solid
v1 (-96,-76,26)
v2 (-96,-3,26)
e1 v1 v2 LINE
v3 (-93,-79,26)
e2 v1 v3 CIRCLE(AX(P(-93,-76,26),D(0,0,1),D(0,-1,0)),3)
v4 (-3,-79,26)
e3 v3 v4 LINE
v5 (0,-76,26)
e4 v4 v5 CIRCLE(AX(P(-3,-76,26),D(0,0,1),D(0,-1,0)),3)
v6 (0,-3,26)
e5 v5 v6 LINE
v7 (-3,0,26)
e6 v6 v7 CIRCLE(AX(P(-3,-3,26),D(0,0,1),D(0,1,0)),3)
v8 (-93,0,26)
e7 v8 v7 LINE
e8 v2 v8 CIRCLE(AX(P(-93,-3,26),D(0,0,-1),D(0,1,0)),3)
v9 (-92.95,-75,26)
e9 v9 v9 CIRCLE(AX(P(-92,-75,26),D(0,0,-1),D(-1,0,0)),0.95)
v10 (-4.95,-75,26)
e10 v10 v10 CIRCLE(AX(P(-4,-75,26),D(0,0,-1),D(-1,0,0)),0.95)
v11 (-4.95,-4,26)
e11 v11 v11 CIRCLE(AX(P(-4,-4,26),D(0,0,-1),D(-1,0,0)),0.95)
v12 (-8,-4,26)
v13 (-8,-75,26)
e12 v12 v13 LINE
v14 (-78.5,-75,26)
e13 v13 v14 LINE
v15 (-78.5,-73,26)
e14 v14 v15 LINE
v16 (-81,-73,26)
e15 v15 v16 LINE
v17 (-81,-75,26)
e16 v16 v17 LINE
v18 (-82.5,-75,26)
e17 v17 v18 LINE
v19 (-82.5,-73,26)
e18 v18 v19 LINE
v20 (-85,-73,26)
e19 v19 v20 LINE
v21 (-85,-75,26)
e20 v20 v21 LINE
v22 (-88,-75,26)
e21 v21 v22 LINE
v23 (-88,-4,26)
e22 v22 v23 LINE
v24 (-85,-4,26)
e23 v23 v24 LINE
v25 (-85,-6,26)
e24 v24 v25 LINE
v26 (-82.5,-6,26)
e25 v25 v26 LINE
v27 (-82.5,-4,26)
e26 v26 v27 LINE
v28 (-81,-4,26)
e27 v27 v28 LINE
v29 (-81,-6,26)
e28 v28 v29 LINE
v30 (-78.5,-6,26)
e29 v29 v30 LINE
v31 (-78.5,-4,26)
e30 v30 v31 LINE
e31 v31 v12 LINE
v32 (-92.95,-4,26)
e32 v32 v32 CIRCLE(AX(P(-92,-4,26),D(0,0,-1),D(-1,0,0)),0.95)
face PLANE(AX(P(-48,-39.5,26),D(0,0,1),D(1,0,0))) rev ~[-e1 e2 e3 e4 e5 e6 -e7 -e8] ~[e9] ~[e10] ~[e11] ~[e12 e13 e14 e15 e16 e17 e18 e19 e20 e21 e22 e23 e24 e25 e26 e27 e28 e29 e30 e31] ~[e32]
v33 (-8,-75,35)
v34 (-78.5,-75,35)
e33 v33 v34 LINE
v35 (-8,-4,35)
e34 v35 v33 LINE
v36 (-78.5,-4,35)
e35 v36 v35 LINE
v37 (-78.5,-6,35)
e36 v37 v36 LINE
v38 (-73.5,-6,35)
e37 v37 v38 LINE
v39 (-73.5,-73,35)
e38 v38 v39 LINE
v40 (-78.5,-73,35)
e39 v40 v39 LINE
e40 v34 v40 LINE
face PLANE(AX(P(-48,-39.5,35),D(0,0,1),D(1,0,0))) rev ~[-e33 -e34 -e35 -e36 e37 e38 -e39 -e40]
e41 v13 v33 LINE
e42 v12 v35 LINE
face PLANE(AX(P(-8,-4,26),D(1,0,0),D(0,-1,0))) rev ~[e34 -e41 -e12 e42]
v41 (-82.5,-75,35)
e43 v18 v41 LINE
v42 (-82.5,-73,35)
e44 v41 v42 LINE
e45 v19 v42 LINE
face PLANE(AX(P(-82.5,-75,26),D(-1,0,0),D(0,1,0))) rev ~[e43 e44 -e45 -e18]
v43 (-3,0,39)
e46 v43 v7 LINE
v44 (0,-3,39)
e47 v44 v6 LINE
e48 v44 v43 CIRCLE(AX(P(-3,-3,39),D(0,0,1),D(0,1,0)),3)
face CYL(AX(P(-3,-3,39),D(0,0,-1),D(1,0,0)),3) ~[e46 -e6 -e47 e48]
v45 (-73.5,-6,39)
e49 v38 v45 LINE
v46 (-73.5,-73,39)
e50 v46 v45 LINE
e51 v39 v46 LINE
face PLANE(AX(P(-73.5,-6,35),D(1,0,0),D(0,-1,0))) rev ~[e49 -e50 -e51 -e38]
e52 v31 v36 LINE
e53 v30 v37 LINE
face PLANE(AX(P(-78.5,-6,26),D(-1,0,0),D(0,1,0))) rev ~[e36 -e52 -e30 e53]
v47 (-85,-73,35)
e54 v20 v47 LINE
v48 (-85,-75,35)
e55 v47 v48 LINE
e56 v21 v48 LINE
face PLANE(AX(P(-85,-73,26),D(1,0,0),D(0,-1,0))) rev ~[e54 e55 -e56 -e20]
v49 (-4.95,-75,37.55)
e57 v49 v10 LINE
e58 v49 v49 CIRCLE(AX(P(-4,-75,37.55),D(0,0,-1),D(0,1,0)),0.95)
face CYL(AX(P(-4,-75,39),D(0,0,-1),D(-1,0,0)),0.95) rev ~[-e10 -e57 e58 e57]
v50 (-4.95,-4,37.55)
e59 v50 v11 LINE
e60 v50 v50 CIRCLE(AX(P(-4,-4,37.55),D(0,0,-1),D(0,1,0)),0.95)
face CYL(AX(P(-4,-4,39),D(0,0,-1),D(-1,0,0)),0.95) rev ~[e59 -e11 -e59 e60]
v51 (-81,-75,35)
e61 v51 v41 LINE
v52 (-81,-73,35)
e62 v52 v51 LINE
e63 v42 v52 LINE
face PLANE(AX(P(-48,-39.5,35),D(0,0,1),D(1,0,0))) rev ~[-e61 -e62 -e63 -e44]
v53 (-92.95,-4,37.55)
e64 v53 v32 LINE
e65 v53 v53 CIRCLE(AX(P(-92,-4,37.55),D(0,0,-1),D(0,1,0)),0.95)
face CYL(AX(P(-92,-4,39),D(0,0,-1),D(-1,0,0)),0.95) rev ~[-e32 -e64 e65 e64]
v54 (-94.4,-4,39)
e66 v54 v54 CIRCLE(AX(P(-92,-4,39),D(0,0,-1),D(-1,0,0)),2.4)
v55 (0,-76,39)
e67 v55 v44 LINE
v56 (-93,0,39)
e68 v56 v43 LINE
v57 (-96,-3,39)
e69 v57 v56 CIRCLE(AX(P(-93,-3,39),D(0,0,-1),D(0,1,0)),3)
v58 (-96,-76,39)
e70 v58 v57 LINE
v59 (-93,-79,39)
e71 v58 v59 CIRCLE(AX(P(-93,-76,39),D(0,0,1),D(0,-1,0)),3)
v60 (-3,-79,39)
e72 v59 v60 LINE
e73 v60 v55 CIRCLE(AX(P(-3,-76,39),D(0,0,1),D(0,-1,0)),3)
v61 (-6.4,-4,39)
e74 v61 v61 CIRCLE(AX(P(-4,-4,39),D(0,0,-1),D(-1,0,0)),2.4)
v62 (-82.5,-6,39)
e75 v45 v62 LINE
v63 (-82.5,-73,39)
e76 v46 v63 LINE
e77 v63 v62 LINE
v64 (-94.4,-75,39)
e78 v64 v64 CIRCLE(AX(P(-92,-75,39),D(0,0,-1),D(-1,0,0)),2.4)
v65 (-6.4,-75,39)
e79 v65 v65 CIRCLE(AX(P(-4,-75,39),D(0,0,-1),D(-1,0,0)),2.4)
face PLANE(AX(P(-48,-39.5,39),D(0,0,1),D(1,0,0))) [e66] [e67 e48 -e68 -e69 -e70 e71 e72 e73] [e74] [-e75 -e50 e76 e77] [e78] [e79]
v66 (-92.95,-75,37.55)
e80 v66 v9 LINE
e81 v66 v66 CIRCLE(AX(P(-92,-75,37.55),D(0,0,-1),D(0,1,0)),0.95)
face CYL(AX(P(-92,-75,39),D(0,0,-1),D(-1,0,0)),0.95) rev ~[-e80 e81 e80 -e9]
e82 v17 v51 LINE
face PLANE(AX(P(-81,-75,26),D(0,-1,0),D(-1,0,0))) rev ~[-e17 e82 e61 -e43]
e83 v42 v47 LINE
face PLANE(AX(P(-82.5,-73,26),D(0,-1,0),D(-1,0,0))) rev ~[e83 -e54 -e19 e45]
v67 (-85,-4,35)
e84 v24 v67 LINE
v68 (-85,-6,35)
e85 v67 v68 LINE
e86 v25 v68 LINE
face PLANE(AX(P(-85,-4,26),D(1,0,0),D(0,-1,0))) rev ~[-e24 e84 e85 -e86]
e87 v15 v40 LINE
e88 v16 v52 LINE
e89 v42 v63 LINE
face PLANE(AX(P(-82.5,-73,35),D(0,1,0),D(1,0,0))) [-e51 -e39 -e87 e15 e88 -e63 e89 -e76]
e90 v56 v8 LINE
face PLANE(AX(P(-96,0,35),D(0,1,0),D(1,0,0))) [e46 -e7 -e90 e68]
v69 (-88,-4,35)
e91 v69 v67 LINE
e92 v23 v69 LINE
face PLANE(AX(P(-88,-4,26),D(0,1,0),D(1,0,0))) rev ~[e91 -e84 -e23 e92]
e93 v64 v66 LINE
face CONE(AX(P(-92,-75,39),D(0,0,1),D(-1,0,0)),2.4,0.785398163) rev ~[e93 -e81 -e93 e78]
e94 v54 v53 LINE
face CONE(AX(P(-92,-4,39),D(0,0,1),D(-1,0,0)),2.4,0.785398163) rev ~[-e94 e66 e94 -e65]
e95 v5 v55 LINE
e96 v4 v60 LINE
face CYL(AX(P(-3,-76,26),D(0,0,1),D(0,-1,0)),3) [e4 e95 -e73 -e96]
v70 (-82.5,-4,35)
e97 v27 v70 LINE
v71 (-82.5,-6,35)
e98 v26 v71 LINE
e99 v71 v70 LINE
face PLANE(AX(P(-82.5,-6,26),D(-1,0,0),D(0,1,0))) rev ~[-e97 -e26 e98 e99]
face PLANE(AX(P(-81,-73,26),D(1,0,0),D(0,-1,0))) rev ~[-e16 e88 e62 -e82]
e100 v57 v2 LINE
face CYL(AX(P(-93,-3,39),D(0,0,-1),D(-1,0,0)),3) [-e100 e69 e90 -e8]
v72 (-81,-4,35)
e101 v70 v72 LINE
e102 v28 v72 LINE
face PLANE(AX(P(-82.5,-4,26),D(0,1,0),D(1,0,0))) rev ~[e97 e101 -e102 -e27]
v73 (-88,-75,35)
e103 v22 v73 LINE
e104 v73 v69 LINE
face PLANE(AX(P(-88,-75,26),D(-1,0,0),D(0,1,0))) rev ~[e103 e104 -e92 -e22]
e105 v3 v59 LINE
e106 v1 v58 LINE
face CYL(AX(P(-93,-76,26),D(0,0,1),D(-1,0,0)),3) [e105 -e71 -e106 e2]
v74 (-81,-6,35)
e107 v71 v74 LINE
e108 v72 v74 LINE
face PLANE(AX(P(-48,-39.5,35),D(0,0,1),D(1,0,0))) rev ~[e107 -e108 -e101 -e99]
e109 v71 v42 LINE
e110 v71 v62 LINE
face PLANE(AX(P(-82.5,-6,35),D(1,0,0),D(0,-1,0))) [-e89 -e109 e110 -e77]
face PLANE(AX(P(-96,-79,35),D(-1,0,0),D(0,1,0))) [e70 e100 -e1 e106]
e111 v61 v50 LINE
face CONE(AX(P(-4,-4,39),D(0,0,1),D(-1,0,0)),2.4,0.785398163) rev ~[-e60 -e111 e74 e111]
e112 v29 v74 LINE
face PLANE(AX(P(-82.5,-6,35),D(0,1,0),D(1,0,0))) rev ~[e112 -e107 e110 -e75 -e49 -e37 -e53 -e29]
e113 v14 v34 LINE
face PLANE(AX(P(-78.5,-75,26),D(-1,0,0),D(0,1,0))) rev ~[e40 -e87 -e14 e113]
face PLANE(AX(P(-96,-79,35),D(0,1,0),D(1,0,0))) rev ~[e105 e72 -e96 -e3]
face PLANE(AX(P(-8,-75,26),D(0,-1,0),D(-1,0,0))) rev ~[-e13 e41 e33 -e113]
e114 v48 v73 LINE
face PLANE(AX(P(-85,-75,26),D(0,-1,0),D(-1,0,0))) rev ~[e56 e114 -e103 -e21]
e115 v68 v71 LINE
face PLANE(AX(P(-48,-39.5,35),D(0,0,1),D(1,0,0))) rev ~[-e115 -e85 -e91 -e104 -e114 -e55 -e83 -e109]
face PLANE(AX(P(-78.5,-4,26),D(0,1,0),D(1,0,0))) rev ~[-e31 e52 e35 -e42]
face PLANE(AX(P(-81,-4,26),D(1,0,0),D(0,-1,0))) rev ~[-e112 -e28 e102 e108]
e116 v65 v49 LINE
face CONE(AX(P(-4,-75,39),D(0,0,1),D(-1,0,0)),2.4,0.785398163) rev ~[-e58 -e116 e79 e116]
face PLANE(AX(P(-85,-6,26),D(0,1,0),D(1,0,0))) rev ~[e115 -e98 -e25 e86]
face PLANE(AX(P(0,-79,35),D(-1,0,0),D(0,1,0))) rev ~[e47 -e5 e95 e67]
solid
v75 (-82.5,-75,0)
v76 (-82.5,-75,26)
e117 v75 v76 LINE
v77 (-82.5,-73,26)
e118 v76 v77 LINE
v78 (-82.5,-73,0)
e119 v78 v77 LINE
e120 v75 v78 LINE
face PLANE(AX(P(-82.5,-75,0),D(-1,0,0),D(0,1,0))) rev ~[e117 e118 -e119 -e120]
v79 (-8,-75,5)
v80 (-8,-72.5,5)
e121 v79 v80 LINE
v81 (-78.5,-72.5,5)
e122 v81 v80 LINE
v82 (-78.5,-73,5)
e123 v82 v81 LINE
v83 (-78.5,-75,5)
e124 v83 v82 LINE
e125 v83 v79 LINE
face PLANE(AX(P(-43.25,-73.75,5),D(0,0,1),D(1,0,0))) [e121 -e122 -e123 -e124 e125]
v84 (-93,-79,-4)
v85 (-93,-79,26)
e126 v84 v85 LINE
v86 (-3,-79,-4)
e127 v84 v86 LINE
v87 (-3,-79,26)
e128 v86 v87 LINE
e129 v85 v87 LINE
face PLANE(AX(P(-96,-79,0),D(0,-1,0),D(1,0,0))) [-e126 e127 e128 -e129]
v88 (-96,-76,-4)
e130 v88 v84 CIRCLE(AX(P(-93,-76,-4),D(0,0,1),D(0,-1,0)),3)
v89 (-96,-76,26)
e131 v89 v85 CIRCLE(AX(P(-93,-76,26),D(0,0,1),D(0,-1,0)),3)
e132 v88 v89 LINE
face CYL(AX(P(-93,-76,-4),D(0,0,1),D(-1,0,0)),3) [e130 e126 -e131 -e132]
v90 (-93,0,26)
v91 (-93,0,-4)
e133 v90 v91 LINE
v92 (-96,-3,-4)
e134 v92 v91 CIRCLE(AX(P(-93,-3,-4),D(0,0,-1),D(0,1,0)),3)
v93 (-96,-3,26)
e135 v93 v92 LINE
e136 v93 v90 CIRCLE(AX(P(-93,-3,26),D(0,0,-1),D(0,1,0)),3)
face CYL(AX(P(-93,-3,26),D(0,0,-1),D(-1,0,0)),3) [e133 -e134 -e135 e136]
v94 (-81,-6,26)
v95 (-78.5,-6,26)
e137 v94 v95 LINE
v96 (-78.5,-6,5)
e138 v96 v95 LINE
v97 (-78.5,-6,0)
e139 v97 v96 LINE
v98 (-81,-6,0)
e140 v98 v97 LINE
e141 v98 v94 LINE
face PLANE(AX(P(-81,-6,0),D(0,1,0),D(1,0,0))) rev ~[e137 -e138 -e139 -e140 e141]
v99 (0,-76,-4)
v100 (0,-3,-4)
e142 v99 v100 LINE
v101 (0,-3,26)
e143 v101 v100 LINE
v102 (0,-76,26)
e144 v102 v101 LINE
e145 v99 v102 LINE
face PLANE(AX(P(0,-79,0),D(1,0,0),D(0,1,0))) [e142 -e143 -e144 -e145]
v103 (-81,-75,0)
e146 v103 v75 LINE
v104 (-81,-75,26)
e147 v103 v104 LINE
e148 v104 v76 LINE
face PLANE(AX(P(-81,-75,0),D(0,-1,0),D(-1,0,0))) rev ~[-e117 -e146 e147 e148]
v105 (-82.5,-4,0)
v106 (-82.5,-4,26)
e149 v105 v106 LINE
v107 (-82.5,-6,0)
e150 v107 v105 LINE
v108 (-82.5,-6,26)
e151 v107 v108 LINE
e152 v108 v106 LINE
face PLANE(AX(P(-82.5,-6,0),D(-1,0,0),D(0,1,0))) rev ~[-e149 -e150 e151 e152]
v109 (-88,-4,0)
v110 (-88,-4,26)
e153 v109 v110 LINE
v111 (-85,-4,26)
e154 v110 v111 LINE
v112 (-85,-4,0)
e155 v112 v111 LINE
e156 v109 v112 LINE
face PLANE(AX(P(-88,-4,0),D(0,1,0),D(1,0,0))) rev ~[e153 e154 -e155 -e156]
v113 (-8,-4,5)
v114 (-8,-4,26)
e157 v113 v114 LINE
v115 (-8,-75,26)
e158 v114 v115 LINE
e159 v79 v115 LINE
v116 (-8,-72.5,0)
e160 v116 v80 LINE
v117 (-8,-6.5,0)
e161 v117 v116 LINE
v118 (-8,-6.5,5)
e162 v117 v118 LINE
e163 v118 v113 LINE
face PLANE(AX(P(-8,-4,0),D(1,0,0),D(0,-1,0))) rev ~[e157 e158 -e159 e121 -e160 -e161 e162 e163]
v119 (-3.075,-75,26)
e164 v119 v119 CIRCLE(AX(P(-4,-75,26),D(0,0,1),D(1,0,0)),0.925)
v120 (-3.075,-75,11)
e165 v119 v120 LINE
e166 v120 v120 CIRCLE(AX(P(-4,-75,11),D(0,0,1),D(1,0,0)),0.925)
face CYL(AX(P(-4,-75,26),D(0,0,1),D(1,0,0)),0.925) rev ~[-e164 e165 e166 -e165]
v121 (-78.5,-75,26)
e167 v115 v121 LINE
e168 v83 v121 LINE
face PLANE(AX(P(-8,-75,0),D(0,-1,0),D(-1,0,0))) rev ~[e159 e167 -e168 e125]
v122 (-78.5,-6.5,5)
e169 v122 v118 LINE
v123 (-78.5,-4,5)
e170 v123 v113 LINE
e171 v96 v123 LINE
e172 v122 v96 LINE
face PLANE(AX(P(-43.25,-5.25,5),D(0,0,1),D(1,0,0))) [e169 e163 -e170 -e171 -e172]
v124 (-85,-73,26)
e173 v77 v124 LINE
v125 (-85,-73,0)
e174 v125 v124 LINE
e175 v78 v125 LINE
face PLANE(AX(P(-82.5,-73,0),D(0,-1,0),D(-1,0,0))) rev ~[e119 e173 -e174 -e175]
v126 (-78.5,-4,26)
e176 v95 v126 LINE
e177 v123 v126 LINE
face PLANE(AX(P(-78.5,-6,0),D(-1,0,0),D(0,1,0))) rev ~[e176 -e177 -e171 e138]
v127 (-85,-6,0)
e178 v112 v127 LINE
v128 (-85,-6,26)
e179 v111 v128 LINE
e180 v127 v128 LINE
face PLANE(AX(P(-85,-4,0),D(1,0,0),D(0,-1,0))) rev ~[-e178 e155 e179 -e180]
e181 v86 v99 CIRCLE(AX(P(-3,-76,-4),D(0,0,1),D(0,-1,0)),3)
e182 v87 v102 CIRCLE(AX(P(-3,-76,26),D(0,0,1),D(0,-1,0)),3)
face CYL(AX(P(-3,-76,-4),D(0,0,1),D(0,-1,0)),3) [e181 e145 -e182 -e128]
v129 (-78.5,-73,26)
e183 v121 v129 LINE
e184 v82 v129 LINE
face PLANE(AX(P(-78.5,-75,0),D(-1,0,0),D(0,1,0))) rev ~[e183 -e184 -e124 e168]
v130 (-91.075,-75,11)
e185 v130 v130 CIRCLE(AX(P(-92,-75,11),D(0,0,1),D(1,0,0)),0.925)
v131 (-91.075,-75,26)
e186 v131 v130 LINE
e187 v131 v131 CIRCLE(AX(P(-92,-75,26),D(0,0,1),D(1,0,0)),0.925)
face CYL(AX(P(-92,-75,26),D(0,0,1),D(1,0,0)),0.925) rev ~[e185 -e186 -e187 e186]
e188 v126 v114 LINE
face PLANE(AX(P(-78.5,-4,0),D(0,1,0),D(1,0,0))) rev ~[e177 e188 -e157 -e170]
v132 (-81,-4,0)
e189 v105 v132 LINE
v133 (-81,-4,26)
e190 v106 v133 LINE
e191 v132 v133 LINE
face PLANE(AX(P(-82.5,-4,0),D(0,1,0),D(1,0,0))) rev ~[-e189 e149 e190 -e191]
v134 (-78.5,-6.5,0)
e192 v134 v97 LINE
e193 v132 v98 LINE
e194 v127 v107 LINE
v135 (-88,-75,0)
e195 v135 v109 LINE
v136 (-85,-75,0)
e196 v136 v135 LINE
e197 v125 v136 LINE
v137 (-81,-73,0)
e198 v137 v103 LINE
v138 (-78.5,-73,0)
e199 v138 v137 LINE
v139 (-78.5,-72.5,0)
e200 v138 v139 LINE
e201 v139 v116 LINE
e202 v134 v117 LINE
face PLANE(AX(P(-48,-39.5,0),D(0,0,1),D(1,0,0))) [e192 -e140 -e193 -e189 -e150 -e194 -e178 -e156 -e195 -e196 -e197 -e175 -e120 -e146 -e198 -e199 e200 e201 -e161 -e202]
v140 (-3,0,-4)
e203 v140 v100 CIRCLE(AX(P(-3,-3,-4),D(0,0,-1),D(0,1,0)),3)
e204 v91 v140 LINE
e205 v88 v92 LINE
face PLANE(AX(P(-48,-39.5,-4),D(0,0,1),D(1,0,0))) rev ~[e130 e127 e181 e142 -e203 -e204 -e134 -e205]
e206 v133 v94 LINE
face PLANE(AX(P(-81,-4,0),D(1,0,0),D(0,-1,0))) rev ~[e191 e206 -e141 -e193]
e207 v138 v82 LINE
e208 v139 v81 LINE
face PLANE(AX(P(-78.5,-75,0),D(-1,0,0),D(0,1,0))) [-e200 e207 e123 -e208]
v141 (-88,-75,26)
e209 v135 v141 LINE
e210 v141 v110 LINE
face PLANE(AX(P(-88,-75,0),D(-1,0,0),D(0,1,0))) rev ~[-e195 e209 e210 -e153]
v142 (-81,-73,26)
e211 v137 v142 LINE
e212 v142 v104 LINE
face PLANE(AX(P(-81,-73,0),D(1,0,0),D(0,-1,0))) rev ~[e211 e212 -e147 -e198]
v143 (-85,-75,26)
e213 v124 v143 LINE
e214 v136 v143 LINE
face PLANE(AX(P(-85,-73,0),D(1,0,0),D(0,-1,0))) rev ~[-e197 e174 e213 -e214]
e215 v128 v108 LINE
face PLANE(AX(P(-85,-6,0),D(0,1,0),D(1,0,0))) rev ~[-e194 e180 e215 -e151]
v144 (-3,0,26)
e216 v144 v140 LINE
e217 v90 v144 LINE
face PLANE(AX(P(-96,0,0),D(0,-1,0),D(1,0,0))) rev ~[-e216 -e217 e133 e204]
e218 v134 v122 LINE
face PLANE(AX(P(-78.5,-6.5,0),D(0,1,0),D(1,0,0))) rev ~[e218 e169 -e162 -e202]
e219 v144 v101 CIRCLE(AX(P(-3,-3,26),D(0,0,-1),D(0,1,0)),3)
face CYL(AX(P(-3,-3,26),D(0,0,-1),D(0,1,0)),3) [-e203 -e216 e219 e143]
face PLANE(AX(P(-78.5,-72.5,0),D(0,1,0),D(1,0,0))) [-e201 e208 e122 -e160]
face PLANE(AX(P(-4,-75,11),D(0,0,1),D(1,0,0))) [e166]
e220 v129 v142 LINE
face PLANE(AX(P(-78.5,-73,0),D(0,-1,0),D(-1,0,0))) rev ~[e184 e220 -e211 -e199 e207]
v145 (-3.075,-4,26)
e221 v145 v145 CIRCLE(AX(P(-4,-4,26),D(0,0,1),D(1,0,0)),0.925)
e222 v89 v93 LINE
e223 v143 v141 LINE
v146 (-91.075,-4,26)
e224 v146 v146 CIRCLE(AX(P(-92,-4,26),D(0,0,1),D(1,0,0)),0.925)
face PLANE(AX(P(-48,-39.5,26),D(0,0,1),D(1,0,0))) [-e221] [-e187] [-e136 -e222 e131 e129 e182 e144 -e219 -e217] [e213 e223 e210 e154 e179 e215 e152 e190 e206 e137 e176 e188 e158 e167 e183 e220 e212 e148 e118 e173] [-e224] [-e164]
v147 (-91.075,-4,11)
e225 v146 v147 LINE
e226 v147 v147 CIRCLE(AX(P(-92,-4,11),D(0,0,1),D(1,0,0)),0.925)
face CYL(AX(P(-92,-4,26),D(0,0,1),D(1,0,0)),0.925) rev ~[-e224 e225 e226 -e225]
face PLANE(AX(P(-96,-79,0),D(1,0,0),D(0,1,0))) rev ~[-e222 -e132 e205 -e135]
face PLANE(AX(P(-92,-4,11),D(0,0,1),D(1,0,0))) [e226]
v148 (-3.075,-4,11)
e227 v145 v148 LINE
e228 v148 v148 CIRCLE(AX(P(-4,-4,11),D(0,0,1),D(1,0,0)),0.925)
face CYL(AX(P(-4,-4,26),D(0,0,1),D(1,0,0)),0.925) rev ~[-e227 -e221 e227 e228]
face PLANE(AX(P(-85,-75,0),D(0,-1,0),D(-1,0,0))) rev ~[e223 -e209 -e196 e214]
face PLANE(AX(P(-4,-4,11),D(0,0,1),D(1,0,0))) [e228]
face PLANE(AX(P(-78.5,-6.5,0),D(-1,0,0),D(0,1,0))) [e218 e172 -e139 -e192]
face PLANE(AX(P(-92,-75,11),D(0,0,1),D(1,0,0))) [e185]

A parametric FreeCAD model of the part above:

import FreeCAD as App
import Part
import Sketcher

V = App.Vector
Q = App.Units.Quantity


def edges_at(feature, points):
    """Names of the edges that pass closest to the given points."""
    edges = feature.Shape.Edges
    near = lambda p: min(range(len(edges)), key=lambda i: edges[i].distToShape(Part.Vertex(*p))[0])
    return sorted({f"Edge{near(p) + 1}" for p in points})

doc = App.newDocument("Part")
body = doc.addObject("PartDesign::Body", "Body")

sketch1 = body.newObject("Sketcher::SketchObject", "Sketch")
sketch1.AttachmentSupport = (doc.getObject("XY_Plane"), [""])
sketch1.MapMode = "FlatFace"
sketch1.addGeometry(Part.LineSegment(V(-96, 0, 0), V(-96, -79, 0)), False)
sketch1.addGeometry(Part.LineSegment(V(-96, -79, 0), V(0, -79, 0)), False)
sketch1.addGeometry(Part.LineSegment(V(0, -79, 0), V(0, 0, 0)), False)
sketch1.addGeometry(Part.LineSegment(V(0, 0, 0), V(-96, 0, 0)), False)
sketch1.addGeometry(Part.LineSegment(V(-85, -75, 0), V(-88, -75, 0)), False)
sketch1.addGeometry(Part.LineSegment(V(-88, -75, 0), V(-88, -4, 0)), False)
sketch1.addGeometry(Part.LineSegment(V(-88, -4, 0), V(-85, -4, 0)), False)
sketch1.addGeometry(Part.LineSegment(V(-85, -4, 0), V(-85, -6, 0)), False)
sketch1.addGeometry(Part.LineSegment(V(-85, -6, 0), V(-82.5, -6, 0)), False)
sketch1.addGeometry(Part.LineSegment(V(-82.5, -6, 0), V(-82.5, -4, 0)), False)
sketch1.addGeometry(Part.LineSegment(V(-82.5, -4, 0), V(-81, -4, 0)), False)
sketch1.addGeometry(Part.LineSegment(V(-81, -4, 0), V(-81, -6, 0)), False)
sketch1.addGeometry(Part.LineSegment(V(-81, -6, 0), V(-78.5, -6, 0)), False)
sketch1.addGeometry(Part.LineSegment(V(-78.5, -6, 0), V(-78.5, -4, 0)), False)
sketch1.addGeometry(Part.LineSegment(V(-78.5, -4, 0), V(-8, -4, 0)), False)
sketch1.addGeometry(Part.LineSegment(V(-8, -4, 0), V(-8, -75, 0)), False)
sketch1.addGeometry(Part.LineSegment(V(-8, -75, 0), V(-78.5, -75, 0)), False)
sketch1.addGeometry(Part.LineSegment(V(-78.5, -75, 0), V(-78.5, -73, 0)), False)
sketch1.addGeometry(Part.LineSegment(V(-78.5, -73, 0), V(-81, -73, 0)), False)
sketch1.addGeometry(Part.LineSegment(V(-81, -73, 0), V(-81, -75, 0)), False)
sketch1.addGeometry(Part.LineSegment(V(-81, -75, 0), V(-82.5, -75, 0)), False)
sketch1.addGeometry(Part.LineSegment(V(-82.5, -75, 0), V(-82.5, -73, 0)), False)
sketch1.addGeometry(Part.LineSegment(V(-82.5, -73, 0), V(-85, -73, 0)), False)
sketch1.addGeometry(Part.LineSegment(V(-85, -73, 0), V(-85, -75, 0)), False)
sketch1.addConstraint(Sketcher.Constraint("Coincident", 0, 2, 1, 1))
sketch1.addConstraint(Sketcher.Constraint("Coincident", 1, 2, 2, 1))
sketch1.addConstraint(Sketcher.Constraint("Coincident", 2, 2, 3, 1))
sketch1.addConstraint(Sketcher.Constraint("Coincident", 3, 2, 0, 1))
sketch1.addConstraint(Sketcher.Constraint("Coincident", 4, 2, 5, 1))
sketch1.addConstraint(Sketcher.Constraint("Coincident", 5, 2, 6, 1))
sketch1.addConstraint(Sketcher.Constraint("Coincident", 6, 2, 7, 1))
sketch1.addConstraint(Sketcher.Constraint("Coincident", 7, 2, 8, 1))
sketch1.addConstraint(Sketcher.Constraint("Coincident", 8, 2, 9, 1))
sketch1.addConstraint(Sketcher.Constraint("Coincident", 9, 2, 10, 1))
sketch1.addConstraint(Sketcher.Constraint("Coincident", 10, 2, 11, 1))
sketch1.addConstraint(Sketcher.Constraint("Coincident", 11, 2, 12, 1))
sketch1.addConstraint(Sketcher.Constraint("Coincident", 12, 2, 13, 1))
sketch1.addConstraint(Sketcher.Constraint("Coincident", 13, 2, 14, 1))
sketch1.addConstraint(Sketcher.Constraint("Coincident", 14, 2, 15, 1))
sketch1.addConstraint(Sketcher.Constraint("Coincident", 15, 2, 16, 1))
sketch1.addConstraint(Sketcher.Constraint("Coincident", 16, 2, 17, 1))
sketch1.addConstraint(Sketcher.Constraint("Coincident", 17, 2, 18, 1))
sketch1.addConstraint(Sketcher.Constraint("Coincident", 18, 2, 19, 1))
sketch1.addConstraint(Sketcher.Constraint("Coincident", 19, 2, 20, 1))
sketch1.addConstraint(Sketcher.Constraint("Coincident", 20, 2, 21, 1))
sketch1.addConstraint(Sketcher.Constraint("Coincident", 21, 2, 22, 1))
sketch1.addConstraint(Sketcher.Constraint("Coincident", 22, 2, 23, 1))
sketch1.addConstraint(Sketcher.Constraint("Coincident", 23, 2, 4, 1))
sketch1.addConstraint(Sketcher.Constraint("Vertical", 0))
sketch1.addConstraint(Sketcher.Constraint("Horizontal", 1))
sketch1.addConstraint(Sketcher.Constraint("Vertical", 2))
sketch1.addConstraint(Sketcher.Constraint("Horizontal", 3))
sketch1.addConstraint(Sketcher.Constraint("Horizontal", 4))
sketch1.addConstraint(Sketcher.Constraint("Vertical", 5))
sketch1.addConstraint(Sketcher.Constraint("Horizontal", 6))
sketch1.addConstraint(Sketcher.Constraint("Vertical", 7))
sketch1.addConstraint(Sketcher.Constraint("Horizontal", 8))
sketch1.addConstraint(Sketcher.Constraint("Vertical", 9))
sketch1.addConstraint(Sketcher.Constraint("Horizontal", 10))
sketch1.addConstraint(Sketcher.Constraint("Vertical", 11))
sketch1.addConstraint(Sketcher.Constraint("Horizontal", 12))
sketch1.addConstraint(Sketcher.Constraint("Vertical", 13))
sketch1.addConstraint(Sketcher.Constraint("Horizontal", 14))
sketch1.addConstraint(Sketcher.Constraint("Vertical", 15))
sketch1.addConstraint(Sketcher.Constraint("Horizontal", 16))
sketch1.addConstraint(Sketcher.Constraint("Vertical", 17))
sketch1.addConstraint(Sketcher.Constraint("Horizontal", 18))
sketch1.addConstraint(Sketcher.Constraint("Vertical", 19))
sketch1.addConstraint(Sketcher.Constraint("Horizontal", 20))
sketch1.addConstraint(Sketcher.Constraint("Vertical", 21))
sketch1.addConstraint(Sketcher.Constraint("Horizontal", 22))
sketch1.addConstraint(Sketcher.Constraint("Vertical", 23))
sketch1.addConstraint(Sketcher.Constraint("Coincident", 2, 2, -1, 1))
sketch1.addConstraint(Sketcher.Constraint("Horizontal", 6, 2, 9, 2))
sketch1.addConstraint(Sketcher.Constraint("Horizontal", 8, 2, 11, 2))
sketch1.addConstraint(Sketcher.Constraint("Horizontal", 10, 2, 13, 2))
sketch1.addConstraint(Sketcher.Constraint("Horizontal", 4, 2, 15, 2))
sketch1.addConstraint(Sketcher.Constraint("Horizontal", 16, 2, 19, 2))
sketch1.addConstraint(Sketcher.Constraint("Horizontal", 18, 2, 21, 2))
sketch1.addConstraint(Sketcher.Constraint("Vertical", 13, 2, 16, 2))
sketch1.addConstraint(Sketcher.Constraint("Vertical", 11, 2, 18, 2))
sketch1.addConstraint(Sketcher.Constraint("Vertical", 9, 2, 20, 2))
sketch1.addConstraint(Sketcher.Constraint("Vertical", 7, 2, 22, 2))
sketch1.addConstraint(Sketcher.Constraint("Equal", 8, 12))
sketch1.addConstraint(Sketcher.Constraint("Equal", 13, 17))
sketch1.addConstraint(Sketcher.Constraint("DistanceX", 1, 1, 1, 2, Q("96 mm")))
sketch1.addConstraint(Sketcher.Constraint("DistanceX", 4, 2, 4, 1, Q("3 mm")))
sketch1.addConstraint(Sketcher.Constraint("DistanceY", 0, 2, 0, 1, Q("79 mm")))
sketch1.addConstraint(Sketcher.Constraint("DistanceY", 5, 1, 5, 2, Q("71 mm")))
sketch1.addConstraint(Sketcher.Constraint("DistanceY", 7, 2, 7, 1, Q("2 mm")))
sketch1.addConstraint(Sketcher.Constraint("DistanceX", 8, 1, 8, 2, Q("2.5 mm")))
sketch1.addConstraint(Sketcher.Constraint("DistanceX", 10, 1, 10, 2, Q("1.5 mm")))
sketch1.addConstraint(Sketcher.Constraint("DistanceX", 14, 1, 14, 2, Q("70.5 mm")))
sketch1.addConstraint(Sketcher.Constraint("DistanceX", 4, 2, -1, 1, Q("88 mm")))
sketch1.addConstraint(Sketcher.Constraint("DistanceY", 4, 2, -1, 1, Q("75 mm")))
pad1 = body.newObject("PartDesign::Pad", "Pad")
pad1.Profile = sketch1
pad1.Length = 26

sketch2 = body.newObject("Sketcher::SketchObject", "Sketch001")
sketch2.AttachmentSupport = (doc.getObject("XY_Plane"), [""])
sketch2.MapMode = "FlatFace"
sketch2.addGeometry(Part.LineSegment(V(-96, 0, 0), V(-96, -79, 0)), False)
sketch2.addGeometry(Part.LineSegment(V(-96, -79, 0), V(0, -79, 0)), False)
sketch2.addGeometry(Part.LineSegment(V(0, -79, 0), V(0, 0, 0)), False)
sketch2.addGeometry(Part.LineSegment(V(0, 0, 0), V(-96, 0, 0)), False)
sketch2.addConstraint(Sketcher.Constraint("Coincident", 0, 2, 1, 1))
sketch2.addConstraint(Sketcher.Constraint("Coincident", 1, 2, 2, 1))
sketch2.addConstraint(Sketcher.Constraint("Coincident", 2, 2, 3, 1))
sketch2.addConstraint(Sketcher.Constraint("Coincident", 3, 2, 0, 1))
sketch2.addConstraint(Sketcher.Constraint("Vertical", 0))
sketch2.addConstraint(Sketcher.Constraint("Horizontal", 1))
sketch2.addConstraint(Sketcher.Constraint("Vertical", 2))
sketch2.addConstraint(Sketcher.Constraint("Horizontal", 3))
sketch2.addConstraint(Sketcher.Constraint("Coincident", 2, 2, -1, 1))
sketch2.addConstraint(Sketcher.Constraint("DistanceX", 1, 1, 1, 2, Q("96 mm")))
sketch2.addConstraint(Sketcher.Constraint("DistanceY", 0, 2, 0, 1, Q("79 mm")))
pad2 = body.newObject("PartDesign::Pad", "Pad001")
pad2.Profile = sketch2
pad2.Length = 4
pad2.Reversed = True

sketch3 = body.newObject("Sketcher::SketchObject", "Sketch002")
sketch3.AttachmentSupport = (doc.getObject("XY_Plane"), [""])
sketch3.MapMode = "FlatFace"
sketch3.addGeometry(Part.LineSegment(V(-78.5, -4, 0), V(-78.5, -6.5, 0)), False)
sketch3.addGeometry(Part.LineSegment(V(-78.5, -6.5, 0), V(-8, -6.5, 0)), False)
sketch3.addGeometry(Part.LineSegment(V(-8, -6.5, 0), V(-8, -4, 0)), False)
sketch3.addGeometry(Part.LineSegment(V(-8, -4, 0), V(-78.5, -4, 0)), False)
sketch3.addGeometry(Part.LineSegment(V(-78.5, -72.5, 0), V(-78.5, -75, 0)), False)
sketch3.addGeometry(Part.LineSegment(V(-78.5, -75, 0), V(-8, -75, 0)), False)
sketch3.addGeometry(Part.LineSegment(V(-8, -75, 0), V(-8, -72.5, 0)), False)
sketch3.addGeometry(Part.LineSegment(V(-8, -72.5, 0), V(-78.5, -72.5, 0)), False)
sketch3.addConstraint(Sketcher.Constraint("Coincident", 0, 2, 1, 1))
sketch3.addConstraint(Sketcher.Constraint("Coincident", 1, 2, 2, 1))
sketch3.addConstraint(Sketcher.Constraint("Coincident", 2, 2, 3, 1))
sketch3.addConstraint(Sketcher.Constraint("Coincident", 3, 2, 0, 1))
sketch3.addConstraint(Sketcher.Constraint("Coincident", 4, 2, 5, 1))
sketch3.addConstraint(Sketcher.Constraint("Coincident", 5, 2, 6, 1))
sketch3.addConstraint(Sketcher.Constraint("Coincident", 6, 2, 7, 1))
sketch3.addConstraint(Sketcher.Constraint("Coincident", 7, 2, 4, 1))
sketch3.addConstraint(Sketcher.Constraint("Vertical", 0))
sketch3.addConstraint(Sketcher.Constraint("Horizontal", 1))
sketch3.addConstraint(Sketcher.Constraint("Vertical", 2))
sketch3.addConstraint(Sketcher.Constraint("Horizontal", 3))
sketch3.addConstraint(Sketcher.Constraint("Vertical", 4))
sketch3.addConstraint(Sketcher.Constraint("Horizontal", 5))
sketch3.addConstraint(Sketcher.Constraint("Vertical", 6))
sketch3.addConstraint(Sketcher.Constraint("Horizontal", 7))
sketch3.addConstraint(Sketcher.Constraint("Vertical", 3, 2, 4, 2))
sketch3.addConstraint(Sketcher.Constraint("Vertical", 2, 2, 5, 2))
sketch3.addConstraint(Sketcher.Constraint("Equal", 2, 4))
sketch3.addConstraint(Sketcher.Constraint("DistanceX", 1, 1, 1, 2, Q("70.5 mm")))
sketch3.addConstraint(Sketcher.Constraint("DistanceY", 0, 2, 0, 1, Q("2.5 mm")))
sketch3.addConstraint(Sketcher.Constraint("DistanceX", 1, 2, -1, 1, Q("8 mm")))
sketch3.addConstraint(Sketcher.Constraint("DistanceY", 2, 2, -1, 1, Q("4 mm")))
sketch3.addConstraint(Sketcher.Constraint("DistanceY", 4, 2, -1, 1, Q("75 mm")))
pad3 = body.newObject("PartDesign::Pad", "Pad002")
pad3.Profile = sketch3
pad3.Length = 5

sketch4 = body.newObject("Sketcher::SketchObject", "Sketch003")
sketch4.AttachmentSupport = (doc.getObject("XY_Plane"), [""])
sketch4.MapMode = "FlatFace"
sketch4.AttachmentOffset = App.Placement(V(0, 0, 26), App.Rotation())
sketch4.addGeometry(Part.Circle(V(-92, -4, 0), V(0, 0, 1), 0.925), False)
sketch4.addGeometry(Part.Circle(V(-4, -4, 0), V(0, 0, 1), 0.925), False)
sketch4.addGeometry(Part.Circle(V(-4, -75, 0), V(0, 0, 1), 0.925), False)
sketch4.addGeometry(Part.Circle(V(-92, -75, 0), V(0, 0, 1), 0.925), False)
sketch4.addConstraint(Sketcher.Constraint("Equal", 0, 1))
sketch4.addConstraint(Sketcher.Constraint("Equal", 1, 2))
sketch4.addConstraint(Sketcher.Constraint("Equal", 2, 3))
sketch4.addConstraint(Sketcher.Constraint("Horizontal", 0, 3, 1, 3))
sketch4.addConstraint(Sketcher.Constraint("Horizontal", 2, 3, 3, 3))
sketch4.addConstraint(Sketcher.Constraint("Vertical", 1, 3, 2, 3))
sketch4.addConstraint(Sketcher.Constraint("Vertical", 0, 3, 3, 3))
sketch4.addConstraint(Sketcher.Constraint("Diameter", 0, Q("1.85 mm")))
sketch4.addConstraint(Sketcher.Constraint("DistanceX", 0, 3, -1, 1, Q("92 mm")))
sketch4.addConstraint(Sketcher.Constraint("DistanceY", 0, 3, -1, 1, Q("4 mm")))
sketch4.addConstraint(Sketcher.Constraint("DistanceX", 1, 3, -1, 1, Q("4 mm")))
sketch4.addConstraint(Sketcher.Constraint("DistanceY", 2, 3, -1, 1, Q("75 mm")))
pocket1 = body.newObject("PartDesign::Pocket", "Pocket")
pocket1.Profile = sketch4
pocket1.Length = 15
doc.recompute()

fillet = body.newObject("PartDesign::Fillet", "Fillet")
fillet.Base = (pocket1, edges_at(pocket1, [
    (0, -79, 11),
    (-96, -79, 11),
    (0, 0, 11),
    (-96, 0, 11),
]))
fillet.Radius = 3
body2 = doc.addObject("PartDesign::Body", "Body001")

sketch5 = body2.newObject("Sketcher::SketchObject", "Sketch004")
sketch5.AttachmentSupport = (doc.getObject("XY_Plane001"), [""])
sketch5.MapMode = "FlatFace"
sketch5.AttachmentOffset = App.Placement(V(0, 0, 26), App.Rotation())
sketch5.addGeometry(Part.LineSegment(V(-96, 0, 0), V(-96, -79, 0)), False)
sketch5.addGeometry(Part.LineSegment(V(-96, -79, 0), V(0, -79, 0)), False)
sketch5.addGeometry(Part.LineSegment(V(0, -79, 0), V(0, 0, 0)), False)
sketch5.addGeometry(Part.LineSegment(V(0, 0, 0), V(-96, 0, 0)), False)
sketch5.addGeometry(Part.LineSegment(V(-85, -75, 0), V(-88, -75, 0)), False)
sketch5.addGeometry(Part.LineSegment(V(-88, -75, 0), V(-88, -4, 0)), False)
sketch5.addGeometry(Part.LineSegment(V(-88, -4, 0), V(-85, -4, 0)), False)
sketch5.addGeometry(Part.LineSegment(V(-85, -4, 0), V(-85, -6, 0)), False)
sketch5.addGeometry(Part.LineSegment(V(-85, -6, 0), V(-82.5, -6, 0)), False)
sketch5.addGeometry(Part.LineSegment(V(-82.5, -6, 0), V(-82.5, -4, 0)), False)
sketch5.addGeometry(Part.LineSegment(V(-82.5, -4, 0), V(-81, -4, 0)), False)
sketch5.addGeometry(Part.LineSegment(V(-81, -4, 0), V(-81, -6, 0)), False)
sketch5.addGeometry(Part.LineSegment(V(-81, -6, 0), V(-78.5, -6, 0)), False)
sketch5.addGeometry(Part.LineSegment(V(-78.5, -6, 0), V(-78.5, -4, 0)), False)
sketch5.addGeometry(Part.LineSegment(V(-78.5, -4, 0), V(-8, -4, 0)), False)
sketch5.addGeometry(Part.LineSegment(V(-8, -4, 0), V(-8, -75, 0)), False)
sketch5.addGeometry(Part.LineSegment(V(-8, -75, 0), V(-78.5, -75, 0)), False)
sketch5.addGeometry(Part.LineSegment(V(-78.5, -75, 0), V(-78.5, -73, 0)), False)
sketch5.addGeometry(Part.LineSegment(V(-78.5, -73, 0), V(-81, -73, 0)), False)
sketch5.addGeometry(Part.LineSegment(V(-81, -73, 0), V(-81, -75, 0)), False)
sketch5.addGeometry(Part.LineSegment(V(-81, -75, 0), V(-82.5, -75, 0)), False)
sketch5.addGeometry(Part.LineSegment(V(-82.5, -75, 0), V(-82.5, -73, 0)), False)
sketch5.addGeometry(Part.LineSegment(V(-82.5, -73, 0), V(-85, -73, 0)), False)
sketch5.addGeometry(Part.LineSegment(V(-85, -73, 0), V(-85, -75, 0)), False)
sketch5.addConstraint(Sketcher.Constraint("Coincident", 0, 2, 1, 1))
sketch5.addConstraint(Sketcher.Constraint("Coincident", 1, 2, 2, 1))
sketch5.addConstraint(Sketcher.Constraint("Coincident", 2, 2, 3, 1))
sketch5.addConstraint(Sketcher.Constraint("Coincident", 3, 2, 0, 1))
sketch5.addConstraint(Sketcher.Constraint("Coincident", 4, 2, 5, 1))
sketch5.addConstraint(Sketcher.Constraint("Coincident", 5, 2, 6, 1))
sketch5.addConstraint(Sketcher.Constraint("Coincident", 6, 2, 7, 1))
sketch5.addConstraint(Sketcher.Constraint("Coincident", 7, 2, 8, 1))
sketch5.addConstraint(Sketcher.Constraint("Coincident", 8, 2, 9, 1))
sketch5.addConstraint(Sketcher.Constraint("Coincident", 9, 2, 10, 1))
sketch5.addConstraint(Sketcher.Constraint("Coincident", 10, 2, 11, 1))
sketch5.addConstraint(Sketcher.Constraint("Coincident", 11, 2, 12, 1))
sketch5.addConstraint(Sketcher.Constraint("Coincident", 12, 2, 13, 1))
sketch5.addConstraint(Sketcher.Constraint("Coincident", 13, 2, 14, 1))
sketch5.addConstraint(Sketcher.Constraint("Coincident", 14, 2, 15, 1))
sketch5.addConstraint(Sketcher.Constraint("Coincident", 15, 2, 16, 1))
sketch5.addConstraint(Sketcher.Constraint("Coincident", 16, 2, 17, 1))
sketch5.addConstraint(Sketcher.Constraint("Coincident", 17, 2, 18, 1))
sketch5.addConstraint(Sketcher.Constraint("Coincident", 18, 2, 19, 1))
sketch5.addConstraint(Sketcher.Constraint("Coincident", 19, 2, 20, 1))
sketch5.addConstraint(Sketcher.Constraint("Coincident", 20, 2, 21, 1))
sketch5.addConstraint(Sketcher.Constraint("Coincident", 21, 2, 22, 1))
sketch5.addConstraint(Sketcher.Constraint("Coincident", 22, 2, 23, 1))
sketch5.addConstraint(Sketcher.Constraint("Coincident", 23, 2, 4, 1))
sketch5.addConstraint(Sketcher.Constraint("Vertical", 0))
sketch5.addConstraint(Sketcher.Constraint("Horizontal", 1))
sketch5.addConstraint(Sketcher.Constraint("Vertical", 2))
sketch5.addConstraint(Sketcher.Constraint("Horizontal", 3))
sketch5.addConstraint(Sketcher.Constraint("Horizontal", 4))
sketch5.addConstraint(Sketcher.Constraint("Vertical", 5))
sketch5.addConstraint(Sketcher.Constraint("Horizontal", 6))
sketch5.addConstraint(Sketcher.Constraint("Vertical", 7))
sketch5.addConstraint(Sketcher.Constraint("Horizontal", 8))
sketch5.addConstraint(Sketcher.Constraint("Vertical", 9))
sketch5.addConstraint(Sketcher.Constraint("Horizontal", 10))
sketch5.addConstraint(Sketcher.Constraint("Vertical", 11))
sketch5.addConstraint(Sketcher.Constraint("Horizontal", 12))
sketch5.addConstraint(Sketcher.Constraint("Vertical", 13))
sketch5.addConstraint(Sketcher.Constraint("Horizontal", 14))
sketch5.addConstraint(Sketcher.Constraint("Vertical", 15))
sketch5.addConstraint(Sketcher.Constraint("Horizontal", 16))
sketch5.addConstraint(Sketcher.Constraint("Vertical", 17))
sketch5.addConstraint(Sketcher.Constraint("Horizontal", 18))
sketch5.addConstraint(Sketcher.Constraint("Vertical", 19))
sketch5.addConstraint(Sketcher.Constraint("Horizontal", 20))
sketch5.addConstraint(Sketcher.Constraint("Vertical", 21))
sketch5.addConstraint(Sketcher.Constraint("Horizontal", 22))
sketch5.addConstraint(Sketcher.Constraint("Vertical", 23))
sketch5.addConstraint(Sketcher.Constraint("Coincident", 2, 2, -1, 1))
sketch5.addConstraint(Sketcher.Constraint("Horizontal", 6, 2, 9, 2))
sketch5.addConstraint(Sketcher.Constraint("Horizontal", 8, 2, 11, 2))
sketch5.addConstraint(Sketcher.Constraint("Horizontal", 10, 2, 13, 2))
sketch5.addConstraint(Sketcher.Constraint("Horizontal", 4, 2, 15, 2))
sketch5.addConstraint(Sketcher.Constraint("Horizontal", 16, 2, 19, 2))
sketch5.addConstraint(Sketcher.Constraint("Horizontal", 18, 2, 21, 2))
sketch5.addConstraint(Sketcher.Constraint("Vertical", 13, 2, 16, 2))
sketch5.addConstraint(Sketcher.Constraint("Vertical", 11, 2, 18, 2))
sketch5.addConstraint(Sketcher.Constraint("Vertical", 9, 2, 20, 2))
sketch5.addConstraint(Sketcher.Constraint("Vertical", 7, 2, 22, 2))
sketch5.addConstraint(Sketcher.Constraint("Equal", 8, 12))
sketch5.addConstraint(Sketcher.Constraint("Equal", 13, 17))
sketch5.addConstraint(Sketcher.Constraint("DistanceX", 1, 1, 1, 2, Q("96 mm")))
sketch5.addConstraint(Sketcher.Constraint("DistanceX", 4, 2, 4, 1, Q("3 mm")))
sketch5.addConstraint(Sketcher.Constraint("DistanceY", 0, 2, 0, 1, Q("79 mm")))
sketch5.addConstraint(Sketcher.Constraint("DistanceY", 5, 1, 5, 2, Q("71 mm")))
sketch5.addConstraint(Sketcher.Constraint("DistanceY", 7, 2, 7, 1, Q("2 mm")))
sketch5.addConstraint(Sketcher.Constraint("DistanceX", 8, 1, 8, 2, Q("2.5 mm")))
sketch5.addConstraint(Sketcher.Constraint("DistanceX", 10, 1, 10, 2, Q("1.5 mm")))
sketch5.addConstraint(Sketcher.Constraint("DistanceX", 14, 1, 14, 2, Q("70.5 mm")))
sketch5.addConstraint(Sketcher.Constraint("DistanceX", 4, 2, -1, 1, Q("88 mm")))
sketch5.addConstraint(Sketcher.Constraint("DistanceY", 4, 2, -1, 1, Q("75 mm")))
pad4 = body2.newObject("PartDesign::Pad", "Pad003")
pad4.Profile = sketch5
pad4.Length = 9

sketch6 = body2.newObject("Sketcher::SketchObject", "Sketch005")
sketch6.AttachmentSupport = (doc.getObject("XY_Plane001"), [""])
sketch6.MapMode = "FlatFace"
sketch6.AttachmentOffset = App.Placement(V(0, 0, 35), App.Rotation())
sketch6.addGeometry(Part.LineSegment(V(-96, 0, 0), V(-96, -79, 0)), False)
sketch6.addGeometry(Part.LineSegment(V(-96, -79, 0), V(0, -79, 0)), False)
sketch6.addGeometry(Part.LineSegment(V(0, -79, 0), V(0, 0, 0)), False)
sketch6.addGeometry(Part.LineSegment(V(0, 0, 0), V(-96, 0, 0)), False)
sketch6.addConstraint(Sketcher.Constraint("Coincident", 0, 2, 1, 1))
sketch6.addConstraint(Sketcher.Constraint("Coincident", 1, 2, 2, 1))
sketch6.addConstraint(Sketcher.Constraint("Coincident", 2, 2, 3, 1))
sketch6.addConstraint(Sketcher.Constraint("Coincident", 3, 2, 0, 1))
sketch6.addConstraint(Sketcher.Constraint("Vertical", 0))
sketch6.addConstraint(Sketcher.Constraint("Horizontal", 1))
sketch6.addConstraint(Sketcher.Constraint("Vertical", 2))
sketch6.addConstraint(Sketcher.Constraint("Horizontal", 3))
sketch6.addConstraint(Sketcher.Constraint("Coincident", 2, 2, -1, 1))
sketch6.addConstraint(Sketcher.Constraint("DistanceX", 1, 1, 1, 2, Q("96 mm")))
sketch6.addConstraint(Sketcher.Constraint("DistanceY", 0, 2, 0, 1, Q("79 mm")))
pad5 = body2.newObject("PartDesign::Pad", "Pad004")
pad5.Profile = sketch6
pad5.Length = 4

sketch7 = body2.newObject("Sketcher::SketchObject", "Sketch006")
sketch7.AttachmentSupport = (doc.getObject("XY_Plane001"), [""])
sketch7.MapMode = "FlatFace"
sketch7.AttachmentOffset = App.Placement(V(0, 0, 35), App.Rotation())
sketch7.addGeometry(Part.LineSegment(V(-82.5, -73, 0), V(-82.5, -6, 0)), False)
sketch7.addGeometry(Part.LineSegment(V(-82.5, -6, 0), V(-73.5, -6, 0)), False)
sketch7.addGeometry(Part.LineSegment(V(-73.5, -6, 0), V(-73.5, -73, 0)), False)
sketch7.addGeometry(Part.LineSegment(V(-73.5, -73, 0), V(-82.5, -73, 0)), False)
sketch7.addConstraint(Sketcher.Constraint("Coincident", 0, 2, 1, 1))
sketch7.addConstraint(Sketcher.Constraint("Coincident", 1, 2, 2, 1))
sketch7.addConstraint(Sketcher.Constraint("Coincident", 2, 2, 3, 1))
sketch7.addConstraint(Sketcher.Constraint("Coincident", 3, 2, 0, 1))
sketch7.addConstraint(Sketcher.Constraint("Vertical", 0))
sketch7.addConstraint(Sketcher.Constraint("Horizontal", 1))
sketch7.addConstraint(Sketcher.Constraint("Vertical", 2))
sketch7.addConstraint(Sketcher.Constraint("Horizontal", 3))
sketch7.addConstraint(Sketcher.Constraint("DistanceX", 1, 1, 1, 2, Q("9 mm")))
sketch7.addConstraint(Sketcher.Constraint("DistanceY", 0, 1, 0, 2, Q("67 mm")))
sketch7.addConstraint(Sketcher.Constraint("DistanceY", 0, 2, -1, 1, Q("6 mm")))
sketch7.addConstraint(Sketcher.Constraint("DistanceX", 0, 2, -1, 1, Q("82.5 mm")))
pocket2 = body2.newObject("PartDesign::Pocket", "Pocket001")
pocket2.Profile = sketch7
pocket2.Length = 10
pocket2.Reversed = True

sketch8 = body2.newObject("Sketcher::SketchObject", "Sketch007")
sketch8.AttachmentSupport = (doc.getObject("XY_Plane001"), [""])
sketch8.MapMode = "FlatFace"
sketch8.AttachmentOffset = App.Placement(V(0, 0, 26), App.Rotation())
sketch8.addGeometry(Part.Circle(V(-92, -4, 0), V(0, 0, 1), 0.925), False)
sketch8.addGeometry(Part.Circle(V(-4, -4, 0), V(0, 0, 1), 0.925), False)
sketch8.addGeometry(Part.Circle(V(-4, -75, 0), V(0, 0, 1), 0.925), False)
sketch8.addGeometry(Part.Circle(V(-92, -75, 0), V(0, 0, 1), 0.925), False)
sketch8.addConstraint(Sketcher.Constraint("Equal", 0, 1))
sketch8.addConstraint(Sketcher.Constraint("Equal", 1, 2))
sketch8.addConstraint(Sketcher.Constraint("Equal", 2, 3))
sketch8.addConstraint(Sketcher.Constraint("Horizontal", 0, 3, 1, 3))
sketch8.addConstraint(Sketcher.Constraint("Horizontal", 2, 3, 3, 3))
sketch8.addConstraint(Sketcher.Constraint("Vertical", 1, 3, 2, 3))
sketch8.addConstraint(Sketcher.Constraint("Vertical", 0, 3, 3, 3))
sketch8.addConstraint(Sketcher.Constraint("Diameter", 0, Q("1.85 mm")))
sketch8.addConstraint(Sketcher.Constraint("DistanceX", 0, 3, -1, 1, Q("92 mm")))
sketch8.addConstraint(Sketcher.Constraint("DistanceY", 0, 3, -1, 1, Q("4 mm")))
sketch8.addConstraint(Sketcher.Constraint("DistanceX", 1, 3, -1, 1, Q("4 mm")))
sketch8.addConstraint(Sketcher.Constraint("DistanceY", 2, 3, -1, 1, Q("75 mm")))
pocket3 = body2.newObject("PartDesign::Pocket", "Pocket002")
pocket3.Profile = sketch8
pocket3.Length = 25
pocket3.Reversed = True

sketch9 = body2.newObject("Sketcher::SketchObject", "Sketch008")
sketch9.AttachmentSupport = (doc.getObject("XY_Plane001"), [""])
sketch9.MapMode = "FlatFace"
sketch9.AttachmentOffset = App.Placement(V(0, 0, 39), App.Rotation())
sketch9.addGeometry(Part.Circle(V(-92, -4, 0), V(0, 0, 1), 0.95), False)
sketch9.addGeometry(Part.Circle(V(-92, -75, 0), V(0, 0, 1), 0.95), False)
sketch9.addGeometry(Part.Circle(V(-4, -75, 0), V(0, 0, 1), 0.95), False)
sketch9.addGeometry(Part.Circle(V(-4, -4, 0), V(0, 0, 1), 0.95), False)
sketch9.addConstraint(Sketcher.Constraint("Equal", 0, 1))
sketch9.addConstraint(Sketcher.Constraint("Equal", 1, 2))
sketch9.addConstraint(Sketcher.Constraint("Equal", 2, 3))
sketch9.addConstraint(Sketcher.Constraint("Horizontal", 1, 3, 2, 3))
sketch9.addConstraint(Sketcher.Constraint("Horizontal", 0, 3, 3, 3))
sketch9.addConstraint(Sketcher.Constraint("Vertical", 0, 3, 1, 3))
sketch9.addConstraint(Sketcher.Constraint("Vertical", 2, 3, 3, 3))
sketch9.addConstraint(Sketcher.Constraint("Diameter", 0, Q("1.9 mm")))
sketch9.addConstraint(Sketcher.Constraint("DistanceX", 0, 3, -1, 1, Q("92 mm")))
sketch9.addConstraint(Sketcher.Constraint("DistanceY", 0, 3, -1, 1, Q("4 mm")))
sketch9.addConstraint(Sketcher.Constraint("DistanceY", 1, 3, -1, 1, Q("75 mm")))
sketch9.addConstraint(Sketcher.Constraint("DistanceX", 2, 3, -1, 1, Q("4 mm")))
doc.recompute()
hole = body2.newObject("PartDesign::Hole", "Hole")
hole.Profile = sketch9
hole.ThreadType = "None"
hole.Diameter = 1.9
hole.DepthType = "ThroughAll"
hole.HoleCutType = "Countersink"
hole.HoleCutDiameter = 4.8
hole.HoleCutCountersinkAngle = 90
doc.recompute()

fillet2 = body2.newObject("PartDesign::Fillet", "Fillet001")
fillet2.Base = (hole, edges_at(hole, [
    (0, -79, 32.5),
    (-96, -79, 32.5),
    (0, 0, 32.5),
    (-96, 0, 32.5),
]))
fillet2.Radius = 3

doc.recompute()
